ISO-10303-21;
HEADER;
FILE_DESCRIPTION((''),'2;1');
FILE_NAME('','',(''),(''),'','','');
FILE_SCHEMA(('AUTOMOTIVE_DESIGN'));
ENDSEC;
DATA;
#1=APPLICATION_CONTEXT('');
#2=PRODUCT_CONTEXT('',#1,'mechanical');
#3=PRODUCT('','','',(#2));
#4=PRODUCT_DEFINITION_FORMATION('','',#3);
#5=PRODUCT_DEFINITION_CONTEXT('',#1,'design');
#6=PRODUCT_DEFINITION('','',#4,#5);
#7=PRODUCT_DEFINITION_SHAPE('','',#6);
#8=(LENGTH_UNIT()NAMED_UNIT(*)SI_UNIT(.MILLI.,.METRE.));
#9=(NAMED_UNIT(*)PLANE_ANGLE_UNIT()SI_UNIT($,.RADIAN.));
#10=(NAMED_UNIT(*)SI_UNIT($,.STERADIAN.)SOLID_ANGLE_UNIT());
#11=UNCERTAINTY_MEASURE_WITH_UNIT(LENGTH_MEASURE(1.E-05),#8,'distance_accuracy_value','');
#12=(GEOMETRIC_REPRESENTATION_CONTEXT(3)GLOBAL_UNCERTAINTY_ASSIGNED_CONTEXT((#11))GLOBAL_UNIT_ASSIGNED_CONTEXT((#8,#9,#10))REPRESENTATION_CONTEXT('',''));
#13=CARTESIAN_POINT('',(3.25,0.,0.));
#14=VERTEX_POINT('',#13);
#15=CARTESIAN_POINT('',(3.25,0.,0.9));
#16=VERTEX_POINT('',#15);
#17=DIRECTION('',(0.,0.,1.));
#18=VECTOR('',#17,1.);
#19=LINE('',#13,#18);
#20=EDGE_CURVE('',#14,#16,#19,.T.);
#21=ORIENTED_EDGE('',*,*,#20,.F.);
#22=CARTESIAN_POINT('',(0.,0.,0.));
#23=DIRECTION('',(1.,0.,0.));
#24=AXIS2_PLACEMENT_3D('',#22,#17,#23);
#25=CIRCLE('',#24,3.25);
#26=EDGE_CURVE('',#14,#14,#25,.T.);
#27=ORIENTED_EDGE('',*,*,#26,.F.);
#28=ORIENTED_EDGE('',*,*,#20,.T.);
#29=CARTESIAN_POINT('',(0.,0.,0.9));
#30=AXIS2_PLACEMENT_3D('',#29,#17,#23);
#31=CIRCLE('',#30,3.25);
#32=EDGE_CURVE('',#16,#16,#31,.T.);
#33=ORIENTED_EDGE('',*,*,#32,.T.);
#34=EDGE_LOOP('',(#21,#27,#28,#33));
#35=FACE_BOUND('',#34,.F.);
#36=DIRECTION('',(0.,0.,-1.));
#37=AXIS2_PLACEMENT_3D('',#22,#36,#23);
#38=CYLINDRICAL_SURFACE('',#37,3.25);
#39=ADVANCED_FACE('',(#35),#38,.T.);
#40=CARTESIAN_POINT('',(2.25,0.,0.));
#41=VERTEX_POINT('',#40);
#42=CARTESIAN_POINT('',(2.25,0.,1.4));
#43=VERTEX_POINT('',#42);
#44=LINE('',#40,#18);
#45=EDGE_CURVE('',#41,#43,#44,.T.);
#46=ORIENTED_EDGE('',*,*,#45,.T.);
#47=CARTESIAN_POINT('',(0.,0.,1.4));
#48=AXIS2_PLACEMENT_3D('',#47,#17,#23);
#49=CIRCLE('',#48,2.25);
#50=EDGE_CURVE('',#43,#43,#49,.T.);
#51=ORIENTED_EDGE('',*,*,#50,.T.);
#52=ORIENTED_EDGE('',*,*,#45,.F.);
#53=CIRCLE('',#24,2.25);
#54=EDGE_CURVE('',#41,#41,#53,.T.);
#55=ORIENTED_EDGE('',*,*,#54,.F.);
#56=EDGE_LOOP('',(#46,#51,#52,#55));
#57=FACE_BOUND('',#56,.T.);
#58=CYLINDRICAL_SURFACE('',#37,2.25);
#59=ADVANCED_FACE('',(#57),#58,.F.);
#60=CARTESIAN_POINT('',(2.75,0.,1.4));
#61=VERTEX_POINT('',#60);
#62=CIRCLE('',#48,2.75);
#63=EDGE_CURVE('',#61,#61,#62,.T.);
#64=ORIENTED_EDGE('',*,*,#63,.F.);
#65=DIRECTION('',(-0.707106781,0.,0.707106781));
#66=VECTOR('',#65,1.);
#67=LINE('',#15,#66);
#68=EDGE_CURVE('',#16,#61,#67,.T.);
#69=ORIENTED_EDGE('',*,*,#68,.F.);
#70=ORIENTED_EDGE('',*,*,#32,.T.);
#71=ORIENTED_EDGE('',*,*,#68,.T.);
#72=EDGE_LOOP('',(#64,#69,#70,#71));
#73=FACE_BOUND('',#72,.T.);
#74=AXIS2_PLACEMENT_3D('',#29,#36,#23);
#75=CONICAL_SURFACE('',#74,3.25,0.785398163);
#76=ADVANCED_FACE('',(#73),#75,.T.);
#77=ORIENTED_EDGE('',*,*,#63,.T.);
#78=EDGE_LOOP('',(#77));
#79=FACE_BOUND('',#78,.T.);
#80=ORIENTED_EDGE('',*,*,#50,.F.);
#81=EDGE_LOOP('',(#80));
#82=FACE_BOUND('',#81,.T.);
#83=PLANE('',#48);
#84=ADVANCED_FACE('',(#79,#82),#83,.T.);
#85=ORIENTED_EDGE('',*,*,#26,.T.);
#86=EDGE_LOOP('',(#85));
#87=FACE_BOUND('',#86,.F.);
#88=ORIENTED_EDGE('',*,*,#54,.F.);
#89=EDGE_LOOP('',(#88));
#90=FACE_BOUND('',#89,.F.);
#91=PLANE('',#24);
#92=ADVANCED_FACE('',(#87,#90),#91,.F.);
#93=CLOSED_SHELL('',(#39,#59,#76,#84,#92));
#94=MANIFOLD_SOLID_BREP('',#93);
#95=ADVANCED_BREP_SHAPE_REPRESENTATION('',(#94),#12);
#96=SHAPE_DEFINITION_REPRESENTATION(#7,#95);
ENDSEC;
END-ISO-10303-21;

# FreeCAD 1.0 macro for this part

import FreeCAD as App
import Part
import Sketcher
from FreeCAD import Vector


def edges_at(feature, points):
    """Names of the edges that pass closest to the given points."""
    edges = feature.Shape.Edges
    near = lambda p: min(range(len(edges)), key=lambda i: edges[i].distToShape(Part.Vertex(*p))[0])
    return sorted({f"Edge{near(p) + 1}" for p in points})

doc = App.newDocument("Part")
body = doc.addObject("PartDesign::Body", "Body")

sketch1 = body.newObject("Sketcher::SketchObject", "Sketch")
sketch1.AttachmentSupport = (doc.getObject("XY_Plane"), [""])
sketch1.MapMode = "FlatFace"
sketch1.addGeometry([
    Part.Circle(Vector(0, 0, 0), Vector(0, 0, 1), 3.25),
    Part.Circle(Vector(0, 0, 0), Vector(0, 0, 1), 2.25),
], False)
sketch1.addConstraint([
    Sketcher.Constraint("Coincident", 0, 3, -1, 1),
    Sketcher.Constraint("Coincident", 1, 3, -1, 1),
    Sketcher.Constraint("Diameter", 0, 6.5),
    Sketcher.Constraint("Diameter", 1, 4.5),
])
pad1 = body.newObject("PartDesign::Pad", "Pad")
pad1.Profile = sketch1
pad1.Length = 1.4
doc.recompute()

chamfer = body.newObject("PartDesign::Chamfer", "Chamfer")
chamfer.Base = (pad1, edges_at(pad1, [(-3.25, 0, 1.4)]))
chamfer.Size = 0.5

doc.recompute()
